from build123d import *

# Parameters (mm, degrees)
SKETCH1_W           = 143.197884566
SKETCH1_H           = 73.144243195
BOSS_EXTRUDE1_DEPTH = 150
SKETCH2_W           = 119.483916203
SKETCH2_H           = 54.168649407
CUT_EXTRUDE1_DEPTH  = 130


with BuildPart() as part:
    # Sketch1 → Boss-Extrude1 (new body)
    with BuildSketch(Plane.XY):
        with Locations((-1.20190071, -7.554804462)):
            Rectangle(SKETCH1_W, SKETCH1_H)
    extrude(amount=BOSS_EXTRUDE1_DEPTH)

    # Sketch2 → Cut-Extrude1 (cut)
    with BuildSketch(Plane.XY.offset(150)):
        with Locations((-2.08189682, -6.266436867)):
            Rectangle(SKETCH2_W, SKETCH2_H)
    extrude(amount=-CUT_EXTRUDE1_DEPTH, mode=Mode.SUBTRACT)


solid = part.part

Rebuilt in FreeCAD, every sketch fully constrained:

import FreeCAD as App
import Part
import Sketcher
Q = App.Units.Quantity

doc = App.newDocument("Part")
body = doc.addObject("PartDesign::Body", "Body")

# Sketch on XY plane
sketch1 = doc.addObject("Sketcher::SketchObject", "Sketch")
body.addObject(sketch1)
sketch1.AttachmentSupport = (doc.XY_Plane, [""])
sketch1.MapMode = "FlatFace"
sketch1.addGeometry([
    Part.LineSegment(App.Vector(-72.800843, 29.017317, 0), App.Vector(-72.800843, -44.126926, 0)),
    Part.LineSegment(App.Vector(-72.800843, -44.126926, 0), App.Vector(70.397042, -44.126926, 0)),
    Part.LineSegment(App.Vector(70.397042, -44.126926, 0), App.Vector(70.397042, 29.017317, 0)),
    Part.LineSegment(App.Vector(70.397042, 29.017317, 0), App.Vector(-72.800843, 29.017317, 0)),
], False)
sketch1.addConstraint([
    Sketcher.Constraint("Coincident", 0, 2, 1, 1),
    Sketcher.Constraint("Coincident", 1, 2, 2, 1),
    Sketcher.Constraint("Coincident", 2, 2, 3, 1),
    Sketcher.Constraint("Coincident", 3, 2, 0, 1),
    Sketcher.Constraint("Vertical", 0),
    Sketcher.Constraint("Horizontal", 1),
    Sketcher.Constraint("Vertical", 2),
    Sketcher.Constraint("Horizontal", 3),
    Sketcher.Constraint("DistanceX", 1, 1, 1, 2, Q("143.197885 mm")),
    Sketcher.Constraint("DistanceY", 0, 2, 0, 1, Q("73.144243 mm")),
    Sketcher.Constraint("DistanceX", -1, 1, 1, 2, Q("70.397042 mm")),
    Sketcher.Constraint("DistanceY", 0, 2, -1, 1, Q("44.126926 mm")),
])
pad1 = doc.addObject("PartDesign::Pad", "Pad")
body.addObject(pad1)
pad1.Profile = sketch1
pad1.Length = 150

# Sketch on XY plane
sketch2 = doc.addObject("Sketcher::SketchObject", "Sketch001")
body.addObject(sketch2)
sketch2.AttachmentSupport = (doc.XY_Plane, [""])
sketch2.MapMode = "FlatFace"
sketch2.AttachmentOffset = App.Placement(App.Vector(0, 0, 150), App.Rotation())
sketch2.addGeometry([
    Part.LineSegment(App.Vector(-61.823855, 20.817888, 0), App.Vector(-61.823855, -33.350762, 0)),
    Part.LineSegment(App.Vector(-61.823855, -33.350762, 0), App.Vector(57.660061, -33.350762, 0)),
    Part.LineSegment(App.Vector(57.660061, -33.350762, 0), App.Vector(57.660061, 20.817888, 0)),
    Part.LineSegment(App.Vector(57.660061, 20.817888, 0), App.Vector(-61.823855, 20.817888, 0)),
], False)
sketch2.addConstraint([
    Sketcher.Constraint("Coincident", 0, 2, 1, 1),
    Sketcher.Constraint("Coincident", 1, 2, 2, 1),
    Sketcher.Constraint("Coincident", 2, 2, 3, 1),
    Sketcher.Constraint("Coincident", 3, 2, 0, 1),
    Sketcher.Constraint("Vertical", 0),
    Sketcher.Constraint("Horizontal", 1),
    Sketcher.Constraint("Vertical", 2),
    Sketcher.Constraint("Horizontal", 3),
    Sketcher.Constraint("DistanceY", 0, 2, 0, 1, Q("54.168649 mm")),
    Sketcher.Constraint("DistanceX", 1, 1, 1, 2, Q("119.483916 mm")),
    Sketcher.Constraint("DistanceY", 0, 2, -1, 1, Q("33.350762 mm")),
    Sketcher.Constraint("DistanceX", -1, 1, 1, 2, Q("57.660061 mm")),
])
pocket1 = doc.addObject("PartDesign::Pocket", "Pocket")
body.addObject(pocket1)
pocket1.Profile = sketch2
pocket1.Length = 130

doc.recompute()
